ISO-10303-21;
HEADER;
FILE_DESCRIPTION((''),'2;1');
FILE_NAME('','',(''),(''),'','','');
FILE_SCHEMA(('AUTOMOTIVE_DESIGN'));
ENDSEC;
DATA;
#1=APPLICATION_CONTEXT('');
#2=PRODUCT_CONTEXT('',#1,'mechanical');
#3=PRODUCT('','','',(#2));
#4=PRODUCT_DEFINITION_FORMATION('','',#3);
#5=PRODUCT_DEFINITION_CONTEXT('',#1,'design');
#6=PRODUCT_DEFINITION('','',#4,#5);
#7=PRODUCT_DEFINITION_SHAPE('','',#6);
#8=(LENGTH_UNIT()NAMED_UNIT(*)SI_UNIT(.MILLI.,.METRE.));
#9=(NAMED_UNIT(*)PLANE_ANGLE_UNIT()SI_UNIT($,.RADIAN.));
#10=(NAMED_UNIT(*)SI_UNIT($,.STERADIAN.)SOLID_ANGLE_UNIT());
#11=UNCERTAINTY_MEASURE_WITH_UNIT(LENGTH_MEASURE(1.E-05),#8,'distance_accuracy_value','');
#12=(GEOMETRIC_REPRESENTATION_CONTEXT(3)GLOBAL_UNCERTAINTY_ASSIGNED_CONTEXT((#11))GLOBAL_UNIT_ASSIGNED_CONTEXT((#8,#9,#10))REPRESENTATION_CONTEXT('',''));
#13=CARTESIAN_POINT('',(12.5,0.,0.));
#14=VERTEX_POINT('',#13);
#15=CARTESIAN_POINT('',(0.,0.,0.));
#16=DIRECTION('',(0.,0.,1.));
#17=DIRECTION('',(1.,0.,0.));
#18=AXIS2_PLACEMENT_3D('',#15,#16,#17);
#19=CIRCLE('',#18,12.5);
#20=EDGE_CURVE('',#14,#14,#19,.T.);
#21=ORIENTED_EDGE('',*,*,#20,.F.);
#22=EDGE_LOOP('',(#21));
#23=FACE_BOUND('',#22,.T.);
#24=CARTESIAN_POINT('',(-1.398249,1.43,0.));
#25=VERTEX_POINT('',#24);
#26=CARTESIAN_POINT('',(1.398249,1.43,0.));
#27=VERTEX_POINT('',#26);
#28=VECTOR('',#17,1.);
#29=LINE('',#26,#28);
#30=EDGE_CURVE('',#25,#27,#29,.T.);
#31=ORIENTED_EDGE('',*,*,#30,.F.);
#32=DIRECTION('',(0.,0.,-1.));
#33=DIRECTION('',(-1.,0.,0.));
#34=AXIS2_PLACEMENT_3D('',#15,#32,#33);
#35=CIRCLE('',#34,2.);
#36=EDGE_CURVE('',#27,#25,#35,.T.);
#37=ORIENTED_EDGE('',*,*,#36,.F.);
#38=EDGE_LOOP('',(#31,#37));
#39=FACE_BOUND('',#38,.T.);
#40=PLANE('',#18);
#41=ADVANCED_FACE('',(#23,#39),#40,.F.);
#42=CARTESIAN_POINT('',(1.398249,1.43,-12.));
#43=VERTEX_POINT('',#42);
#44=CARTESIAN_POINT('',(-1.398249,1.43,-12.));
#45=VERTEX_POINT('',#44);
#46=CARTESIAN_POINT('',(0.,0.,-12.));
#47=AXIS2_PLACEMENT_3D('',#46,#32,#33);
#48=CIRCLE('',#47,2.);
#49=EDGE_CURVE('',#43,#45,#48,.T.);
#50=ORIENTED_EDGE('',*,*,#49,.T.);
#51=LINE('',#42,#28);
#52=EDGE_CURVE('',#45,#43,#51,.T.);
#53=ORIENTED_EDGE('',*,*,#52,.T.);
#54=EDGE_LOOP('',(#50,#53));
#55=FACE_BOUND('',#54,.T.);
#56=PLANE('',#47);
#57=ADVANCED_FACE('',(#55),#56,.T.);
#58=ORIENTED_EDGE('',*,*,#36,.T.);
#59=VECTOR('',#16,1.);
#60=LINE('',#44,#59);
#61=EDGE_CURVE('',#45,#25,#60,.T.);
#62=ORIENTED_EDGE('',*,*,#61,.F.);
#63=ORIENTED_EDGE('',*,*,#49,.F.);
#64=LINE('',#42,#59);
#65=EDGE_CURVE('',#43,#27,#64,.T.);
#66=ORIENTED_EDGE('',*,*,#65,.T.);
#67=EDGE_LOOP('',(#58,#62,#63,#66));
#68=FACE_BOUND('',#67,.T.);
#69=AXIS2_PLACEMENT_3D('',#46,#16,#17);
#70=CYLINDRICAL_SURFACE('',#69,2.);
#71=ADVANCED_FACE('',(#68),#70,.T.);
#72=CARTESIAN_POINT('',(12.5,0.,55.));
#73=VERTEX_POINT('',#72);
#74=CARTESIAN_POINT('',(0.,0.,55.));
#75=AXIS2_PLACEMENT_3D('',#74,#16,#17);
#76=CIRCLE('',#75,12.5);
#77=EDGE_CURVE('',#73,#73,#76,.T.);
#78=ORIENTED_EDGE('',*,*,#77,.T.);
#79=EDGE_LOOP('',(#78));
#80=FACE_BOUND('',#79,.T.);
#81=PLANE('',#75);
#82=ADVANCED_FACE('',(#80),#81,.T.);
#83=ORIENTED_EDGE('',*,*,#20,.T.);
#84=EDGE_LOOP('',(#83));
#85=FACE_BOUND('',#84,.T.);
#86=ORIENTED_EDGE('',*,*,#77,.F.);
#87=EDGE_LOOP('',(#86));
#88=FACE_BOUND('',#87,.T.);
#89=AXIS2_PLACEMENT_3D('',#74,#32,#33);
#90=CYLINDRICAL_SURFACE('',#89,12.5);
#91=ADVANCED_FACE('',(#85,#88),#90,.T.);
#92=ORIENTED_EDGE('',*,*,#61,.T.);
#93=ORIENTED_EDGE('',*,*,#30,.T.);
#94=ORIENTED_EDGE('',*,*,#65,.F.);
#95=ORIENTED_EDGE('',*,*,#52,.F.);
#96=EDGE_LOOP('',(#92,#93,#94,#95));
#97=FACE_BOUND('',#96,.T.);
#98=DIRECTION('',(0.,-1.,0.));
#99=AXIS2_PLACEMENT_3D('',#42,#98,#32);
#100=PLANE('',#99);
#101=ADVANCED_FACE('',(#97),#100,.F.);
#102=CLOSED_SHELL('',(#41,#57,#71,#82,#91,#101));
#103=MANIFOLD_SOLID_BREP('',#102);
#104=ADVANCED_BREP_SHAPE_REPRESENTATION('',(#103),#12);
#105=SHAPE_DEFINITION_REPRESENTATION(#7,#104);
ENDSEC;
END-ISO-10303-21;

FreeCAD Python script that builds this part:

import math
import FreeCAD as App
import Part
import Sketcher
Q = App.Units.Quantity

doc = App.newDocument("Part")
body = doc.addObject("PartDesign::Body", "Body")

# Sketch on XY plane
sketch1 = body.newObject("Sketcher::SketchObject", "Sketch")
sketch1.AttachmentSupport = (doc.getObject("XY_Plane"), [""])
sketch1.MapMode = "FlatFace"
sketch1.addGeometry(Part.Circle(App.Vector(0, 0, 0), App.Vector(0, 0, 1), 12), False)
sketch1.addConstraint(Sketcher.Constraint("Coincident", 0, 3, -1, 1))
sketch1.addConstraint(Sketcher.Constraint("Diameter", 0, Q("25 mm")))
pad1 = body.newObject("PartDesign::Pad", "Pad")
pad1.Profile = sketch1
pad1.Length = 55

# Sketch on XY plane
sketch2 = body.newObject("Sketcher::SketchObject", "Sketch001")
sketch2.AttachmentSupport = (doc.getObject("XY_Plane"), [""])
sketch2.MapMode = "FlatFace"
sketch2.addGeometry(Part.LineSegment(App.Vector(-1.4, 1.4, 0), App.Vector(1.4, 1.4, 0)), False)
sketch2.addGeometry(Part.ArcOfCircle(Part.Circle(App.Vector(0, 0, 0), App.Vector(0, 0, 1), 2), math.radians(134), math.radians(406)), False)
sketch2.addConstraint(Sketcher.Constraint("Coincident", 0, 1, 1, 1))
sketch2.addConstraint(Sketcher.Constraint("Coincident", 1, 2, 0, 2))
sketch2.addConstraint(Sketcher.Constraint("Horizontal", 0))
sketch2.addConstraint(Sketcher.Constraint("Coincident", 1, 3, -1, 1))
sketch2.addConstraint(Sketcher.Constraint("Radius", 1, Q("2 mm")))
sketch2.addConstraint(Sketcher.Constraint("DistanceY", -1, 1, 0, 1, Q("1.43 mm")))
pad2 = body.newObject("PartDesign::Pad", "Pad001")
pad2.Profile = sketch2
pad2.Length = 12
pad2.Reversed = True

doc.recompute()
